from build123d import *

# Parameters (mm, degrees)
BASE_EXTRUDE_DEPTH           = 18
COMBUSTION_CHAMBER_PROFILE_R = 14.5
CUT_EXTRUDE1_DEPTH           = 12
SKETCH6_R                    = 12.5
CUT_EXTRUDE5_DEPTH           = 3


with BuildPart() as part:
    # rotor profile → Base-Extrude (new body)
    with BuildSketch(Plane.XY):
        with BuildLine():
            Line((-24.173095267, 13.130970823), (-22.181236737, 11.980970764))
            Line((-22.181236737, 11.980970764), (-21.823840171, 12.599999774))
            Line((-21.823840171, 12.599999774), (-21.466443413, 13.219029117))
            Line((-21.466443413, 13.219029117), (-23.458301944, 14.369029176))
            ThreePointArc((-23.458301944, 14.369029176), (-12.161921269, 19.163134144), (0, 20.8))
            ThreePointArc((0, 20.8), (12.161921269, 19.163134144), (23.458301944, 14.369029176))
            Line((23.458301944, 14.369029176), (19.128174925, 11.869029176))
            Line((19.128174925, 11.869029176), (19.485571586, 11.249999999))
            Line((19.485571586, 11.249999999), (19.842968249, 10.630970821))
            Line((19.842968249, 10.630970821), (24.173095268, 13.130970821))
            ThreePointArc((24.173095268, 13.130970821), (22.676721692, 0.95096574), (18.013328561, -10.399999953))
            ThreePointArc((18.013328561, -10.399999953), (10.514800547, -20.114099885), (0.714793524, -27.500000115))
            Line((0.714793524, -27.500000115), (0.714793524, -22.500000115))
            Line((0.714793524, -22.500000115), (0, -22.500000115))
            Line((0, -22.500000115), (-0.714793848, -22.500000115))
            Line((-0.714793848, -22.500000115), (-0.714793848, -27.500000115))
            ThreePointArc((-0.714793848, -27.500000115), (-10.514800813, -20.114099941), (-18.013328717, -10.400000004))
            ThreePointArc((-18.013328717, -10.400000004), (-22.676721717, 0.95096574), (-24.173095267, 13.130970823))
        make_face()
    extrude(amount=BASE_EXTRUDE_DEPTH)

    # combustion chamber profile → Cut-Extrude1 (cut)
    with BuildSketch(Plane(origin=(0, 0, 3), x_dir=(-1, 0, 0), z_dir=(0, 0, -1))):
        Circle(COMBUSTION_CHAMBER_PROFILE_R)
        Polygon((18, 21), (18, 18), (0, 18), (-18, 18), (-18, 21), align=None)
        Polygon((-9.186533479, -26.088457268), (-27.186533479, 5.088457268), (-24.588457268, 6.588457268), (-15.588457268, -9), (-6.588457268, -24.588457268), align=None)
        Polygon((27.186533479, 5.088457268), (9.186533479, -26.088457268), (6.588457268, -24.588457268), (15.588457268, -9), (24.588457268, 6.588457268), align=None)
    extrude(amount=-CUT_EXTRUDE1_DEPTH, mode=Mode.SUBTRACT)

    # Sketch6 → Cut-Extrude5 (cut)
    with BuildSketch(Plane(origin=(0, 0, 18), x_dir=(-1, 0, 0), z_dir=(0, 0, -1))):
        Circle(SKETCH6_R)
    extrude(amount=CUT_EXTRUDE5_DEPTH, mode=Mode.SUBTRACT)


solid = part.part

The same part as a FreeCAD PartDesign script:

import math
import FreeCAD as App
import Part
import Sketcher
from FreeCAD import Vector
Q = App.Units.Quantity


def add_polygon(sketch, points):
    """Adds a closed chain of lines whose ends are joined by coincident constraints."""
    first, n = sketch.GeometryCount, len(points)
    for a, b in zip(points, points[1:] + points[:1]):
        sketch.addGeometry(Part.LineSegment(App.Vector(*a, 0), App.Vector(*b, 0)), False)
    for i in range(n):
        sketch.addConstraint(Sketcher.Constraint("Coincident", first + i, 2, first + (i + 1) % n, 1))

doc = App.newDocument("Part")
body = doc.addObject("PartDesign::Body", "Body")

# Sketch on XY plane
sketch1 = body.newObject("Sketcher::SketchObject", "Sketch")
sketch1.AttachmentSupport = (doc.getObject("XY_Plane"), [""])
sketch1.MapMode = "FlatFace"
sketch1.addGeometry(Part.LineSegment(Vector(-22.2, 12, 0), Vector(-24.2, 13.1, 0)), False)
sketch1.addGeometry(Part.ArcOfCircle(Part.Circle(Vector(21.8, 12.6, 0), Vector(0, 0, 1), 46), math.radians(179), math.radians(210)), False)
sketch1.addGeometry(Part.ArcOfCircle(Part.Circle(Vector(21.8, 12.6, 0), Vector(0, 0, 1), 46), math.radians(-150), math.radians(-119)), False)
sketch1.addGeometry(Part.LineSegment(Vector(-0.7, -27.5, 0), Vector(-0.7, -22.5, 0)), False)
sketch1.addGeometry(Part.LineSegment(Vector(-0.7, -22.5, 0), Vector(0.7, -22.5, 0)), False)
sketch1.addGeometry(Part.LineSegment(Vector(0.7, -22.5, 0), Vector(0.7, -27.5, 0)), False)
sketch1.addGeometry(Part.ArcOfCircle(Part.Circle(Vector(-21.8, 12.6, 0), Vector(0, 0, 1), 46), math.radians(-61), math.radians(-30)), False)
sketch1.addGeometry(Part.ArcOfCircle(Part.Circle(Vector(-21.8, 12.6, 0), Vector(0, 0, 1), 46), math.radians(-30), math.radians(1)), False)
sketch1.addGeometry(Part.LineSegment(Vector(24.2, 13.1, 0), Vector(19.8, 10.6, 0)), False)
sketch1.addGeometry(Part.LineSegment(Vector(19.8, 10.6, 0), Vector(19.5, 11.2, 0)), False)
sketch1.addGeometry(Part.LineSegment(Vector(19.5, 11.2, 0), Vector(19.1, 11.9, 0)), False)
sketch1.addGeometry(Part.LineSegment(Vector(19.1, 11.9, 0), Vector(23.5, 14.4, 0)), False)
sketch1.addGeometry(Part.ArcOfCircle(Part.Circle(Vector(0, -25.2, 0), Vector(0, 0, 1), 46), math.radians(59), math.radians(90)), False)
sketch1.addGeometry(Part.ArcOfCircle(Part.Circle(Vector(0, -25.2, 0), Vector(0, 0, 1), 46), math.radians(90), math.radians(121)), False)
sketch1.addGeometry(Part.LineSegment(Vector(-23.5, 14.4, 0), Vector(-21.5, 13.2, 0)), False)
sketch1.addGeometry(Part.LineSegment(Vector(-21.5, 13.2, 0), Vector(-21.8, 12.6, 0)), False)
sketch1.addGeometry(Part.LineSegment(Vector(-21.8, 12.6, 0), Vector(-22.2, 12, 0)), False)
sketch1.addConstraint(Sketcher.Constraint("Coincident", 0, 2, 1, 1))
sketch1.addConstraint(Sketcher.Constraint("Tangent", 1, 2, 2, 1))
sketch1.addConstraint(Sketcher.Constraint("Coincident", 2, 2, 3, 1))
sketch1.addConstraint(Sketcher.Constraint("Coincident", 3, 2, 4, 1))
sketch1.addConstraint(Sketcher.Constraint("Coincident", 4, 2, 5, 1))
sketch1.addConstraint(Sketcher.Constraint("Coincident", 5, 2, 6, 1))
sketch1.addConstraint(Sketcher.Constraint("Tangent", 6, 2, 7, 1))
sketch1.addConstraint(Sketcher.Constraint("Coincident", 7, 2, 8, 1))
sketch1.addConstraint(Sketcher.Constraint("Coincident", 8, 2, 9, 1))
sketch1.addConstraint(Sketcher.Constraint("Coincident", 9, 2, 10, 1))
sketch1.addConstraint(Sketcher.Constraint("Coincident", 10, 2, 11, 1))
sketch1.addConstraint(Sketcher.Constraint("Coincident", 11, 2, 12, 1))
sketch1.addConstraint(Sketcher.Constraint("Tangent", 12, 2, 13, 1))
sketch1.addConstraint(Sketcher.Constraint("Coincident", 13, 2, 14, 1))
sketch1.addConstraint(Sketcher.Constraint("Coincident", 14, 2, 15, 1))
sketch1.addConstraint(Sketcher.Constraint("Coincident", 15, 2, 16, 1))
sketch1.addConstraint(Sketcher.Constraint("Coincident", 16, 2, 0, 1))
sketch1.addConstraint(Sketcher.Constraint("Vertical", 3))
sketch1.addConstraint(Sketcher.Constraint("Horizontal", 4))
sketch1.addConstraint(Sketcher.Constraint("Vertical", 5))
sketch1.addConstraint(Sketcher.Constraint("Coincident", 15, 2, 6, 3))
sketch1.addConstraint(Sketcher.Constraint("Equal", 2, 6))
sketch1.addConstraint(Sketcher.Constraint("Equal", 6, 7))
sketch1.addConstraint(Sketcher.Constraint("Equal", 7, 12))
sketch1.addConstraint(Sketcher.Constraint("Equal", 12, 13))
sketch1.addConstraint(Sketcher.Constraint("Symmetric", 1, 3, 6, 3, -2))
sketch1.addConstraint(Sketcher.Constraint("Symmetric", 2, 2, 5, 2, -2))
sketch1.addConstraint(Sketcher.Constraint("Symmetric", 11, 2, 13, 2, -2))
sketch1.addConstraint(Sketcher.Constraint("PointOnObject", 12, 2, -2))
sketch1.addConstraint(Sketcher.Constraint("Perpendicular", 8, 9))
sketch1.addConstraint(Sketcher.Constraint("Parallel", 9, 10))
sketch1.addConstraint(Sketcher.Constraint("Perpendicular", 10, 11))
sketch1.addConstraint(Sketcher.Constraint("Parallel", 0, 14))
sketch1.addConstraint(Sketcher.Constraint("Perpendicular", 14, 15))
sketch1.addConstraint(Sketcher.Constraint("Parallel", 15, 16))
sketch1.addConstraint(Sketcher.Constraint("Horizontal", 1, 2, 6, 2))
sketch1.addConstraint(Sketcher.Constraint("Horizontal", 0, 2, 7, 2))
sketch1.addConstraint(Sketcher.Constraint("Equal", 9, 10))
sketch1.addConstraint(Sketcher.Constraint("Equal", 8, 11))
sketch1.addConstraint(Sketcher.Constraint("Equal", 0, 14))
sketch1.addConstraint(Sketcher.Constraint("Equal", 10, 15))
sketch1.addConstraint(Sketcher.Constraint("Radius", 1, Q("46.000002 mm")))
sketch1.addConstraint(Sketcher.Constraint("DistanceY", 3, 1, 3, 2, Q("5 mm")))
sketch1.addConstraint(Sketcher.Constraint("Angle", 0, Q("150 deg")))
sketch1.addConstraint(Sketcher.Constraint("Distance", 8, Q("5 mm")))
sketch1.addConstraint(Sketcher.Constraint("DistanceY", 1, 2, 7, 3, Q("23 mm")))
sketch1.addConstraint(Sketcher.Constraint("Distance", 0, Q("2.3 mm")))
sketch1.addConstraint(Sketcher.Constraint("DistanceY", -1, 1, 1, 3, Q("12.6 mm")))
sketch1.addConstraint(Sketcher.Constraint("DistanceY", 12, 3, -1, 1, Q("25.2 mm")))
sketch1.addConstraint(Sketcher.Constraint("DistanceY", 2, 2, -1, 1, Q("27.5 mm")))
pad1 = body.newObject("PartDesign::Pad", "Pad")
pad1.Profile = sketch1
pad1.Length = 18

# Sketch on XY plane
sketch2 = body.newObject("Sketcher::SketchObject", "Sketch001")
sketch2.AttachmentSupport = (doc.getObject("XY_Plane"), [""])
sketch2.MapMode = "FlatFace"
sketch2.AttachmentOffset = App.Placement(Vector(0, 0, 3), App.Rotation())
sketch2.addGeometry(Part.Circle(Vector(0, 0, 0), Vector(0, 0, 1), 14.5), False)  # 0
add_polygon(sketch2, [(-18, 18), (-18, 21), (18, 21), (18, 18)])  # lines 1-4
add_polygon(sketch2, [(27.2, 5.1), (9.2, -26.1), (6.6, -24.6), (24.6, 6.6)])  # lines 5-8
add_polygon(sketch2, [(-9.2, -26.1), (-27.2, 5.1), (-24.6, 6.6), (-6.6, -24.6)])  # lines 9-12
sketch2.addConstraint(Sketcher.Constraint("Vertical", 1))
sketch2.addConstraint(Sketcher.Constraint("Horizontal", 2))
sketch2.addConstraint(Sketcher.Constraint("Vertical", 3))
sketch2.addConstraint(Sketcher.Constraint("Horizontal", 4))
sketch2.addConstraint(Sketcher.Constraint("Coincident", 0, 3, -1, 1))
sketch2.addConstraint(Sketcher.Constraint("Symmetric", 8, 2, 9, 2, -2))
sketch2.addConstraint(Sketcher.Constraint("Symmetric", 7, 2, 10, 2, -2))
sketch2.addConstraint(Sketcher.Constraint("Symmetric", 6, 2, 11, 2, -2))
sketch2.addConstraint(Sketcher.Constraint("Symmetric", 5, 2, 12, 2, -2))
sketch2.addConstraint(Sketcher.Constraint("Perpendicular", 5, 6))
sketch2.addConstraint(Sketcher.Constraint("Perpendicular", 6, 7))
sketch2.addConstraint(Sketcher.Constraint("Perpendicular", 7, 8))
sketch2.addConstraint(Sketcher.Constraint("Diameter", 0, Q("29 mm")))
sketch2.addConstraint(Sketcher.Constraint("DistanceX", 2, 1, 2, 2, Q("36 mm")))
sketch2.addConstraint(Sketcher.Constraint("DistanceY", 1, 1, 1, 2, Q("3 mm")))
sketch2.addConstraint(Sketcher.Constraint("Angle", 5, Q("-120 deg")))
sketch2.addConstraint(Sketcher.Constraint("Distance", 5, Q("36 mm")))
sketch2.addConstraint(Sketcher.Constraint("Distance", 6, Q("3 mm")))
sketch2.addConstraint(Sketcher.Constraint("DistanceX", 1, 2, -1, 1, Q("18 mm")))
sketch2.addConstraint(Sketcher.Constraint("DistanceY", -1, 1, 1, 2, Q("21 mm")))
sketch2.addConstraint(Sketcher.Constraint("DistanceX", 9, 2, 6, 2, Q("33.774991 mm")))
sketch2.addConstraint(Sketcher.Constraint("DistanceY", 5, 2, -1, 1, Q("26.088457 mm")))
pocket1 = body.newObject("PartDesign::Pocket", "Pocket")
pocket1.Profile = sketch2
pocket1.Length = 12
pocket1.Reversed = True

# Sketch on XY plane
sketch3 = body.newObject("Sketcher::SketchObject", "Sketch002")
sketch3.AttachmentSupport = (doc.getObject("XY_Plane"), [""])
sketch3.MapMode = "FlatFace"
sketch3.AttachmentOffset = App.Placement(Vector(0, 0, 18), App.Rotation())
sketch3.addGeometry(Part.Circle(Vector(0, 0, 0), Vector(0, 0, 1), 12), False)
sketch3.addConstraint(Sketcher.Constraint("Coincident", 0, 3, -1, 1))
sketch3.addConstraint(Sketcher.Constraint("Diameter", 0, Q("25 mm")))
pocket2 = body.newObject("PartDesign::Pocket", "Pocket001")
pocket2.Profile = sketch3
pocket2.Length = 3

doc.recompute()
